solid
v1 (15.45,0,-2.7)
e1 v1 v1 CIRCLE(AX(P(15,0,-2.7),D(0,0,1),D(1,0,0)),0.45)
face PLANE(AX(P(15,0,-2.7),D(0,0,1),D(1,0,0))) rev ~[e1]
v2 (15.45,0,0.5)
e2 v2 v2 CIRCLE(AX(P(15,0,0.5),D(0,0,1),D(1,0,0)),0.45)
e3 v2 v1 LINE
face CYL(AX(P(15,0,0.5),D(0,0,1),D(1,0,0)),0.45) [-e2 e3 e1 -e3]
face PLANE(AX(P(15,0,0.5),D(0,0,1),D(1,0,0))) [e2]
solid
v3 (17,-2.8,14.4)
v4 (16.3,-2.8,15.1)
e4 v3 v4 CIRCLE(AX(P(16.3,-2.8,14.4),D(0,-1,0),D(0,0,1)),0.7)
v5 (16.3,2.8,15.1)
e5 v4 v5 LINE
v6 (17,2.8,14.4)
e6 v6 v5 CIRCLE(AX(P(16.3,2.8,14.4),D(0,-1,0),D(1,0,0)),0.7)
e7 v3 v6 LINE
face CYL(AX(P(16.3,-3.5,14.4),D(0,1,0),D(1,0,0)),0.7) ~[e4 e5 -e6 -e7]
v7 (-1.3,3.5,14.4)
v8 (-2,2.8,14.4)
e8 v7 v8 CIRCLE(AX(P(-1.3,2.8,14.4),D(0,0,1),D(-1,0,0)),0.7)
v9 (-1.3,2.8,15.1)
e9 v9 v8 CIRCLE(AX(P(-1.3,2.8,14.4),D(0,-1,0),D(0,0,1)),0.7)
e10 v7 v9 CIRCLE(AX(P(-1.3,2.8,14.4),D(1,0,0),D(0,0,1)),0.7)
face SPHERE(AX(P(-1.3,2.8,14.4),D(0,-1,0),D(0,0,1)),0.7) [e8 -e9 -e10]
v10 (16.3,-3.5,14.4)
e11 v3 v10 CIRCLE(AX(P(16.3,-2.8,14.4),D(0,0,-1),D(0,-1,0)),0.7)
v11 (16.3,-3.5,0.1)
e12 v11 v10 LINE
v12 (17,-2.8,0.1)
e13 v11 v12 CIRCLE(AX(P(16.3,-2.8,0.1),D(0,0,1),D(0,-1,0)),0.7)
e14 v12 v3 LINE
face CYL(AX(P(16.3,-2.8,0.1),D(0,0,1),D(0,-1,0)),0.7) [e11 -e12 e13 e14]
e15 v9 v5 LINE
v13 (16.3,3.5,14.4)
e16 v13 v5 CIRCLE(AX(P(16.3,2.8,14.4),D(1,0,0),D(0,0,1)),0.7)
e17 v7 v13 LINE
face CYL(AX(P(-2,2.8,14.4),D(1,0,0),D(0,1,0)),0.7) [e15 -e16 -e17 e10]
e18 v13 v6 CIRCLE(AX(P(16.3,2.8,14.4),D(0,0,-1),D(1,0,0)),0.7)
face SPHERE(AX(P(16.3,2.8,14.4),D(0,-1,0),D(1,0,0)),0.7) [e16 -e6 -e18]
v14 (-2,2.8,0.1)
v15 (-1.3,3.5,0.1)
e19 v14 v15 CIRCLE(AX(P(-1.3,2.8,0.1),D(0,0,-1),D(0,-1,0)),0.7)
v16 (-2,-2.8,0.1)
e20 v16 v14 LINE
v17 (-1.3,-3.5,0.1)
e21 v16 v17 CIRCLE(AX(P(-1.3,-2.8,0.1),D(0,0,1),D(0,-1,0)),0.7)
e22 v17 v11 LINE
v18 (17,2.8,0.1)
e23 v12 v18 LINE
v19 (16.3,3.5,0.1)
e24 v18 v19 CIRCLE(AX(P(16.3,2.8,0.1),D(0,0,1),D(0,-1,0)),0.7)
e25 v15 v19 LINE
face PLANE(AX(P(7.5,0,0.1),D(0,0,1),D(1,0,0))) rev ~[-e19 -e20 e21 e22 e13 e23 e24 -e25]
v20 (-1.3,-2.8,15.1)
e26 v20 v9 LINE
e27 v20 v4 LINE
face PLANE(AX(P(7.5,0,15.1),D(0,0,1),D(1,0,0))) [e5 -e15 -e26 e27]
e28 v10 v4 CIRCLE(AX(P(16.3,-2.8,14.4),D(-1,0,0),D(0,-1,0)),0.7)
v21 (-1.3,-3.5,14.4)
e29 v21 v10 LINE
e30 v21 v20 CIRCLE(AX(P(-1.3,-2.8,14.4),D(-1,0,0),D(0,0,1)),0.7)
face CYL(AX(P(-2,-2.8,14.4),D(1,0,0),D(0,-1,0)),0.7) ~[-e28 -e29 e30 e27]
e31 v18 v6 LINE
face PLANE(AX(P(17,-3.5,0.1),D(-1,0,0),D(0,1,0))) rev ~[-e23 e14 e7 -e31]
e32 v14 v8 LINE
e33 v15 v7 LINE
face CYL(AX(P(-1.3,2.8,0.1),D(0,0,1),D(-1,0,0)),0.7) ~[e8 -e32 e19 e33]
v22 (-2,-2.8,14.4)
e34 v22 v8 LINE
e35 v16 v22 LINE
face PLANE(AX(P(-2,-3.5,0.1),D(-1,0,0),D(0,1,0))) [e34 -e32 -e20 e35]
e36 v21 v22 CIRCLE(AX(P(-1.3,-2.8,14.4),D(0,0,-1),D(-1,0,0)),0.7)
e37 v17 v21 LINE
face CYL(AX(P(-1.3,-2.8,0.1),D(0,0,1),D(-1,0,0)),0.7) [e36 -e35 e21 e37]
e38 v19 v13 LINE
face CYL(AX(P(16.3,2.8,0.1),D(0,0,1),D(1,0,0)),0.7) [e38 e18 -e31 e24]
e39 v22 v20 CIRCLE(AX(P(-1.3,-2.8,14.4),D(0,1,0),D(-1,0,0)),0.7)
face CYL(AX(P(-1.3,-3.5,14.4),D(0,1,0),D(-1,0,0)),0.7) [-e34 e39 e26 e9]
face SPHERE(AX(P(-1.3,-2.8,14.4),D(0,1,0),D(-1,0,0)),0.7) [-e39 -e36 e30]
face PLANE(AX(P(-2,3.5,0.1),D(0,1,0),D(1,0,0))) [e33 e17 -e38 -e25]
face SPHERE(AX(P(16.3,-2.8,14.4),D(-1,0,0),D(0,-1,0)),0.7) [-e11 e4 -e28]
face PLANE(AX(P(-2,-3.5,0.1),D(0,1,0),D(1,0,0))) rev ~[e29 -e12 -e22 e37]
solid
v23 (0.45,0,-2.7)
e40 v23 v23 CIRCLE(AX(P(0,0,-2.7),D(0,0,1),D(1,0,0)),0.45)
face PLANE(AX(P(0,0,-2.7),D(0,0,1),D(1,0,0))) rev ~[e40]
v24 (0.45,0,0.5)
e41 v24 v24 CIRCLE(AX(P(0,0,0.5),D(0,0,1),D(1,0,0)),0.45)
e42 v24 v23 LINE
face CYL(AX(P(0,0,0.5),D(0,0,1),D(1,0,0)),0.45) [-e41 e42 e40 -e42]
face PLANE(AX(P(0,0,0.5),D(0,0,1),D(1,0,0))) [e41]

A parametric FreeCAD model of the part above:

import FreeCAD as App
import Part
import Sketcher

V = App.Vector


def edges_at(feature, points):
    """Names of the edges that pass closest to the given points."""
    edges = feature.Shape.Edges
    near = lambda p: min(range(len(edges)), key=lambda i: edges[i].distToShape(Part.Vertex(*p))[0])
    return sorted({f"Edge{near(p) + 1}" for p in points})


def add_polygon(sketch, points):
    """Adds a closed chain of lines whose ends are joined by coincident constraints."""
    first, n = sketch.GeometryCount, len(points)
    for a, b in zip(points, points[1:] + points[:1]):
        sketch.addGeometry(Part.LineSegment(App.Vector(*a, 0), App.Vector(*b, 0)), False)
    for i in range(n):
        sketch.addConstraint(Sketcher.Constraint("Coincident", first + i, 2, first + (i + 1) % n, 1))

doc = App.newDocument("Part")
body = doc.addObject("PartDesign::Body", "Body")

# Sketch on XY plane
sketch1 = body.newObject("Sketcher::SketchObject", "Sketch")
sketch1.AttachmentSupport = (doc.getObject("XY_Plane"), [""])
sketch1.MapMode = "FlatFace"
sketch1.AttachmentOffset = App.Placement(V(0, 0, 0.1), App.Rotation())
add_polygon(sketch1, [(-2, 4), (-2, -4), (17, -4), (17, 4)])  # lines 0-3
sketch1.addConstraint([
    Sketcher.Constraint("Vertical", 0),
    Sketcher.Constraint("Horizontal", 1),
    Sketcher.Constraint("Vertical", 2),
    Sketcher.Constraint("Horizontal", 3),
    Sketcher.Constraint("DistanceX", 1, 1, 1, 2, 19.0),
    Sketcher.Constraint("DistanceY", 0, 2, 0, 1, 7.0),
    Sketcher.Constraint("DistanceX", 0, 2, -1, 1, 2.0),
    Sketcher.Constraint("DistanceY", 0, 2, -1, 1, 3.5),
])
pad1 = body.newObject("PartDesign::Pad", "Pad")
pad1.Profile = sketch1
pad1.Length = 15
doc.recompute()

fillet = body.newObject("PartDesign::Fillet", "Fillet")
fillet.Base = (pad1, edges_at(pad1, [
    (-2, 0, 15.1),
    (-2, -3.5, 7.6),
    (7.5, -3.5, 15.1),
    (17, -3.5, 7.6),
    (17, 0, 15.1),
    (17, 3.5, 7.6),
    (7.5, 3.5, 15.1),
    (-2, 3.5, 7.6),
]))
fillet.Radius = 0.7
body2 = doc.addObject("PartDesign::Body", "Body001")
body2.AllowCompound = True

# Sketch on XY plane
sketch2 = body2.newObject("Sketcher::SketchObject", "Sketch001")
sketch2.AttachmentSupport = (doc.getObject("XY_Plane001"), [""])
sketch2.MapMode = "FlatFace"
sketch2.AttachmentOffset = App.Placement(V(0, 0, 0.5), App.Rotation())
sketch2.addGeometry([
    Part.Circle(V(0, 0, 0), V(0, 0, 1), 0.45),
    Part.Circle(V(15, 0, 0), V(0, 0, 1), 0.45),
], False)
sketch2.addConstraint([
    Sketcher.Constraint("Coincident", 0, 3, -1, 1),
    Sketcher.Constraint("Equal", 0, 1),
    Sketcher.Constraint("PointOnObject", 1, 3, -1),
    Sketcher.Constraint("Diameter", 0, 0.9),
    Sketcher.Constraint("DistanceX", -1, 1, 1, 3, 15.0),
])
pad2 = body2.newObject("PartDesign::Pad", "Pad001")
pad2.Profile = sketch2
pad2.Length = 3.2
pad2.Reversed = True

doc.recompute()
